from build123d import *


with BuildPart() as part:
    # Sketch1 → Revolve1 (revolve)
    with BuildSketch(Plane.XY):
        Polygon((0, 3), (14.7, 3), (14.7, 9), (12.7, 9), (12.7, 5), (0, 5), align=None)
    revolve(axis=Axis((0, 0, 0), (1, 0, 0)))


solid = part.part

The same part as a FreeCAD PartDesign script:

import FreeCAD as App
import Part
import Sketcher

V = App.Vector

doc = App.newDocument("Part")
body = doc.addObject("PartDesign::Body", "Body")

# Sketch on XY plane
sketch1 = doc.addObject("Sketcher::SketchObject", "Sketch")
body.addObject(sketch1)
sketch1.AttachmentSupport = (doc.XY_Plane, [""])
sketch1.MapMode = "FlatFace"
sketch1.addGeometry(Part.LineSegment(V(0, 3, 0), V(14.7, 3, 0)), False)
sketch1.addGeometry(Part.LineSegment(V(14.7, 3, 0), V(14.7, 9, 0)), False)
sketch1.addGeometry(Part.LineSegment(V(14.7, 9, 0), V(12.7, 9, 0)), False)
sketch1.addGeometry(Part.LineSegment(V(12.7, 9, 0), V(12.7, 5, 0)), False)
sketch1.addGeometry(Part.LineSegment(V(12.7, 5, 0), V(0, 5, 0)), False)
sketch1.addGeometry(Part.LineSegment(V(0, 5, 0), V(0, 3, 0)), False)
sketch1.addConstraint(Sketcher.Constraint("Coincident", 0, 2, 1, 1))
sketch1.addConstraint(Sketcher.Constraint("Coincident", 1, 2, 2, 1))
sketch1.addConstraint(Sketcher.Constraint("Coincident", 2, 2, 3, 1))
sketch1.addConstraint(Sketcher.Constraint("Coincident", 3, 2, 4, 1))
sketch1.addConstraint(Sketcher.Constraint("Coincident", 4, 2, 5, 1))
sketch1.addConstraint(Sketcher.Constraint("Coincident", 5, 2, 0, 1))
sketch1.addConstraint(Sketcher.Constraint("Horizontal", 0))
sketch1.addConstraint(Sketcher.Constraint("Vertical", 1))
sketch1.addConstraint(Sketcher.Constraint("Horizontal", 2))
sketch1.addConstraint(Sketcher.Constraint("Vertical", 3))
sketch1.addConstraint(Sketcher.Constraint("Horizontal", 4))
sketch1.addConstraint(Sketcher.Constraint("Vertical", 5))
sketch1.addConstraint(Sketcher.Constraint("PointOnObject", 4, 2, -2))
sketch1.addConstraint(Sketcher.Constraint("Equal", 2, 5))
sketch1.addConstraint(Sketcher.Constraint("DistanceX", 2, 2, 2, 1, 2.0))
sketch1.addConstraint(Sketcher.Constraint("DistanceY", 1, 1, 1, 2, 6.0))
sketch1.addConstraint(Sketcher.Constraint("DistanceX", 0, 1, 0, 2, 14.7))
sketch1.addConstraint(Sketcher.Constraint("DistanceY", -1, 1, 0, 2, 3.0))
revolution = doc.addObject("PartDesign::Revolution", "Revolution")
body.addObject(revolution)
revolution.Profile = sketch1
revolution.ReferenceAxis = (sketch1, ["H_Axis"])
revolution.Angle = 360

doc.recompute()
